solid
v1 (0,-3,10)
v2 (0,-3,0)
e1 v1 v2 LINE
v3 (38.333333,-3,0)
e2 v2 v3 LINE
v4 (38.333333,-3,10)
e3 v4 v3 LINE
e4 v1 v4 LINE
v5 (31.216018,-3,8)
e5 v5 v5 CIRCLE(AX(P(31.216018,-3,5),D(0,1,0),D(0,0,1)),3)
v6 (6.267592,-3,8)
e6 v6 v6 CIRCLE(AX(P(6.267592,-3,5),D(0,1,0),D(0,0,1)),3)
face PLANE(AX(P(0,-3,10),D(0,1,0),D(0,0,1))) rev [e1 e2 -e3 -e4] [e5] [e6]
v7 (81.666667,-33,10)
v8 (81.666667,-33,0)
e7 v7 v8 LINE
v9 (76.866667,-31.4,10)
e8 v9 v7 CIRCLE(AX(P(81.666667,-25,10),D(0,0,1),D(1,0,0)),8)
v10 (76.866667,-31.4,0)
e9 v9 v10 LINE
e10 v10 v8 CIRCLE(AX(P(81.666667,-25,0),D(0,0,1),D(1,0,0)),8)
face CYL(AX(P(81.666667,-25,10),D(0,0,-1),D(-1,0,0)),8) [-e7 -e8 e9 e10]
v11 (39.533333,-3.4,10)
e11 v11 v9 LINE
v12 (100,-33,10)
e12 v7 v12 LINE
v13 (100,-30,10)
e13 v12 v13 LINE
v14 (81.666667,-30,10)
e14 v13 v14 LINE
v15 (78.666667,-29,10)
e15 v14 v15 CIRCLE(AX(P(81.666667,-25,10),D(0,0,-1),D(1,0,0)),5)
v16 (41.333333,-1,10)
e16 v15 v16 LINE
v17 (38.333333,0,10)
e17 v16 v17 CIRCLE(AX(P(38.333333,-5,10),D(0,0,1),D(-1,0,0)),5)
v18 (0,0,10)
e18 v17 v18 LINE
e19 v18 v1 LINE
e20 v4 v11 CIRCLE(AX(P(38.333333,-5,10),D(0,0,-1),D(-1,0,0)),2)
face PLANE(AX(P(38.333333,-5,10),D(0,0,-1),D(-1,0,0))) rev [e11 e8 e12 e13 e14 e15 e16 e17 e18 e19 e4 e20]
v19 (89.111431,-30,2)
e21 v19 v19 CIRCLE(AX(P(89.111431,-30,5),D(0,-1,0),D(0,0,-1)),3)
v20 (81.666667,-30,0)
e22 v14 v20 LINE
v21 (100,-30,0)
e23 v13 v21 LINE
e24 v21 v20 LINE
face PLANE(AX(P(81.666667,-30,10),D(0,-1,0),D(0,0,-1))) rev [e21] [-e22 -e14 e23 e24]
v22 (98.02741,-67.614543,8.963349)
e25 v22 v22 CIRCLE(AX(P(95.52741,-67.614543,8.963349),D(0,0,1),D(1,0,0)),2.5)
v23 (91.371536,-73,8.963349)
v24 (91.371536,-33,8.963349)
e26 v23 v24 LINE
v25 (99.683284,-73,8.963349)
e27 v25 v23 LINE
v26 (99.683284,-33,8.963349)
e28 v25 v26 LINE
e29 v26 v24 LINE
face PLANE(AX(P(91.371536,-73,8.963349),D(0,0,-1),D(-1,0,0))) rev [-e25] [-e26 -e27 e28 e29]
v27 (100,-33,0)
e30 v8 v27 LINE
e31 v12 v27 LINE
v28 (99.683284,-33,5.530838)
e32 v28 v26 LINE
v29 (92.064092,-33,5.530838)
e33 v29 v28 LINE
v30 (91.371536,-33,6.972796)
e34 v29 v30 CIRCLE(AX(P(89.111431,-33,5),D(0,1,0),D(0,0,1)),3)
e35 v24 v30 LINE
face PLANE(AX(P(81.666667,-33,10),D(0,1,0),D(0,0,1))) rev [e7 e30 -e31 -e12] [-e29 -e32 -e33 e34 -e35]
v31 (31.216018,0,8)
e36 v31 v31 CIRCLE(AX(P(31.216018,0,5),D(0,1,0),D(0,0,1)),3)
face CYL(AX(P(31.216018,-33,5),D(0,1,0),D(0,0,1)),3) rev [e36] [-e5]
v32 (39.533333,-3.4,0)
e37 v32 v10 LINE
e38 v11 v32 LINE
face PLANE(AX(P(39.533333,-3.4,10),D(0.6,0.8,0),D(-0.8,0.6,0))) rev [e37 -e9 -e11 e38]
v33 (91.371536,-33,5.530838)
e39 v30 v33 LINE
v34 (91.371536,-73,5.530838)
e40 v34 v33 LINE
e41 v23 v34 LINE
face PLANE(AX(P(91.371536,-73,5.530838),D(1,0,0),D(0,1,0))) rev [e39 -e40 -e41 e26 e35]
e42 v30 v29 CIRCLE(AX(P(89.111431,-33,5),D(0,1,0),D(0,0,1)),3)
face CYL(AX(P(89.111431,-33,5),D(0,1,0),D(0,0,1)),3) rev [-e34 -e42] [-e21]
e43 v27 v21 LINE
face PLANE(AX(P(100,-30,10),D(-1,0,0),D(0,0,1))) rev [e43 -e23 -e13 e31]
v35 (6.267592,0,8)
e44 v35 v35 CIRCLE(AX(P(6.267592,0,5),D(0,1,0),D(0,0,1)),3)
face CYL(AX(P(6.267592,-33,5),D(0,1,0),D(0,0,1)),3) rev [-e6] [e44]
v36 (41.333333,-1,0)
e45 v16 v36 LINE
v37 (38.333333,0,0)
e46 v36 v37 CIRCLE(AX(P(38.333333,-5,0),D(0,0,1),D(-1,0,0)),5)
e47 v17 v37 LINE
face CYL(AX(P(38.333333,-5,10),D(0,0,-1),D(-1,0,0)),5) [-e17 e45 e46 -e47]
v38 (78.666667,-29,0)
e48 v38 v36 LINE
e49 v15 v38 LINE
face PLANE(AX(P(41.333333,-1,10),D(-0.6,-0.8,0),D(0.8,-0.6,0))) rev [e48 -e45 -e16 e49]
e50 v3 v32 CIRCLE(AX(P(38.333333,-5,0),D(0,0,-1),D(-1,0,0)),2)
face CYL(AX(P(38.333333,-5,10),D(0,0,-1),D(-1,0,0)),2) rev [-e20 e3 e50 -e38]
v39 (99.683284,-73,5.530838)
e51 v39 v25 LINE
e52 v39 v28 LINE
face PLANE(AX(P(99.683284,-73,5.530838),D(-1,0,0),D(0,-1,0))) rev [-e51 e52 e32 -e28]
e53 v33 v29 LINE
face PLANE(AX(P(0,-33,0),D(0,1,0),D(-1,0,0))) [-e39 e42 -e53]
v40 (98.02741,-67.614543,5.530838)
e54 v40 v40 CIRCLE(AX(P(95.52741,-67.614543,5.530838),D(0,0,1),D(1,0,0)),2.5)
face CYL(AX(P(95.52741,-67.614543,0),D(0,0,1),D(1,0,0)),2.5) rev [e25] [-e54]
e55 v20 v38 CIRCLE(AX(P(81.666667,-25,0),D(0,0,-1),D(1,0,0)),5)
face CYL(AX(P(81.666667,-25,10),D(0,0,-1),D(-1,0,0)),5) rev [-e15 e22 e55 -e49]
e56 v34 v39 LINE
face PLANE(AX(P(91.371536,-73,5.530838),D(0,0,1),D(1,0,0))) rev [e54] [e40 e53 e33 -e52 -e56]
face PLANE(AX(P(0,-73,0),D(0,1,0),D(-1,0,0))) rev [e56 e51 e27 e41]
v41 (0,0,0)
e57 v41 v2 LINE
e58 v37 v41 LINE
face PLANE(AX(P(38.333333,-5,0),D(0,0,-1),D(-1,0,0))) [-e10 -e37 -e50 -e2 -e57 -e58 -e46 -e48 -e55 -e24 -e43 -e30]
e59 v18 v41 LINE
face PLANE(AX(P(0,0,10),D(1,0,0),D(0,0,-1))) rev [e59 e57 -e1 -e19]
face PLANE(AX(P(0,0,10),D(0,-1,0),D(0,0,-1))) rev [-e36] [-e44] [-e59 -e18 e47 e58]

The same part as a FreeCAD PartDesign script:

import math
import FreeCAD as App
import Part
import Sketcher

V = App.Vector
Q = App.Units.Quantity

doc = App.newDocument("Part")
body = doc.addObject("PartDesign::Body", "Body")

# Sketch on XY plane
sketch1 = body.newObject("Sketcher::SketchObject", "Sketch")
sketch1.AttachmentSupport = (doc.getObject("XY_Plane"), [""])
sketch1.MapMode = "FlatFace"
sketch1.addGeometry([
    Part.LineSegment(V(38.3, 0, 0), V(0, 0, 0)),  # 0
    Part.LineSegment(V(0, 0, 0), V(0, -3, 0)),  # 1
    Part.LineSegment(V(0, -3, 0), V(38.3, -3, 0)),  # 2
    Part.ArcOfCircle(Part.Circle(V(38.3, -5, 0), V(0, 0, 1), 2), math.radians(53), math.radians(90)),  # 3
    Part.LineSegment(V(39.5, -3.4, 0), V(76.9, -31.4, 0)),  # 4
    Part.ArcOfCircle(Part.Circle(V(81.7, -25, 0), V(0, 0, 1), 8), math.radians(-127), math.radians(-90)),  # 5
    Part.LineSegment(V(81.7, -33, 0), V(100, -33, 0)),  # 6
    Part.LineSegment(V(100, -33, 0), V(100, -30, 0)),  # 7
    Part.LineSegment(V(100, -30, 0), V(81.7, -30, 0)),  # 8
    Part.ArcOfCircle(Part.Circle(V(81.7, -25, 0), V(0, 0, 1), 5), math.radians(-127), math.radians(-90)),  # 9
    Part.LineSegment(V(78.7, -29, 0), V(41.3, -1, 0)),  # 10
    Part.ArcOfCircle(Part.Circle(V(38.3, -5, 0), V(0, 0, 1), 5), math.radians(53), math.radians(90)),  # 11
], False)
sketch1.addConstraint([
    Sketcher.Constraint("Coincident", 0, 2, 1, 1),
    Sketcher.Constraint("Coincident", 1, 2, 2, 1),
    Sketcher.Constraint("Tangent", 2, 2, 3, 2),
    Sketcher.Constraint("Tangent", 3, 1, 4, 1),
    Sketcher.Constraint("Tangent", 4, 2, 5, 1),
    Sketcher.Constraint("Tangent", 5, 2, 6, 1),
    Sketcher.Constraint("Coincident", 6, 2, 7, 1),
    Sketcher.Constraint("Coincident", 7, 2, 8, 1),
    Sketcher.Constraint("Tangent", 8, 2, 9, 2),
    Sketcher.Constraint("Tangent", 9, 1, 10, 1),
    Sketcher.Constraint("Tangent", 10, 2, 11, 1),
    Sketcher.Constraint("Tangent", 11, 2, 0, 1),
    Sketcher.Constraint("Horizontal", 0),
    Sketcher.Constraint("Vertical", 1),
    Sketcher.Constraint("Horizontal", 2),
    Sketcher.Constraint("Horizontal", 6),
    Sketcher.Constraint("Vertical", 7),
    Sketcher.Constraint("Horizontal", 8),
    Sketcher.Constraint("Coincident", 0, 2, -1, 1),
    Sketcher.Constraint("Coincident", 9, 3, 5, 3),
    Sketcher.Constraint("Coincident", 11, 3, 3, 3),
    Sketcher.Constraint("Equal", 9, 11),
    Sketcher.Constraint("Parallel", 4, 10),
    Sketcher.Constraint("Radius", 3, Q("2 mm")),
    Sketcher.Constraint("Radius", 5, Q("8 mm")),
    Sketcher.Constraint("DistanceY", 5, 3, -1, 1, Q("25 mm")),
    Sketcher.Constraint("DistanceX", -1, 1, 6, 2, Q("100 mm")),
    Sketcher.Constraint("DistanceY", 9, 1, -1, 1, Q("29 mm")),
    Sketcher.Constraint("DistanceX", 0, 2, 0, 1, Q("38.333333 mm")),
])
pad1 = body.newObject("PartDesign::Pad", "Pad")
pad1.Profile = sketch1
pad1.Length = 10

# Sketch on XZ plane
sketch2 = body.newObject("Sketcher::SketchObject", "Sketch001")
sketch2.AttachmentSupport = (doc.getObject("XZ_Plane"), [""])
sketch2.MapMode = "FlatFace"
sketch2.addGeometry([
    Part.Circle(V(6.3, 5, 0), V(0, 0, 1), 3),
    Part.Circle(V(31.2, 5, 0), V(0, 0, 1), 3),
    Part.Circle(V(89.1, 5, 0), V(0, 0, 1), 3),
], False)
sketch2.addConstraint([
    Sketcher.Constraint("Equal", 0, 1),
    Sketcher.Constraint("Equal", 1, 2),
    Sketcher.Constraint("Horizontal", 0, 3, 1, 3),
    Sketcher.Constraint("Horizontal", 1, 3, 2, 3),
    Sketcher.Constraint("Diameter", 0, Q("6 mm")),
    Sketcher.Constraint("DistanceY", -1, 1, 0, 3, Q("5 mm")),
    Sketcher.Constraint("DistanceX", -1, 1, 2, 3, Q("89.111431 mm")),
    Sketcher.Constraint("DistanceX", 0, 3, 2, 3, Q("82.843839 mm")),
    Sketcher.Constraint("DistanceX", -1, 1, 1, 3, Q("31.216018 mm")),
])
pocket1 = body.newObject("PartDesign::Pocket", "Pocket")
pocket1.Profile = sketch2
pocket1.Type = "ThroughAll"
pocket1.Reversed = True

# Sketch on XZ plane
sketch3 = body.newObject("Sketcher::SketchObject", "Sketch002")
sketch3.AttachmentSupport = (doc.getObject("XZ_Plane"), [""])
sketch3.MapMode = "FlatFace"
sketch3.AttachmentOffset = App.Placement(V(0, 0, 33), App.Rotation())
sketch3.addGeometry([
    Part.LineSegment(V(91.4, 9, 0), V(91.4, 5.5, 0)),
    Part.LineSegment(V(91.4, 5.5, 0), V(99.7, 5.5, 0)),
    Part.LineSegment(V(99.7, 5.5, 0), V(99.7, 9, 0)),
    Part.LineSegment(V(99.7, 9, 0), V(91.4, 9, 0)),
], False)
sketch3.addConstraint([
    Sketcher.Constraint("Coincident", 0, 2, 1, 1),
    Sketcher.Constraint("Coincident", 1, 2, 2, 1),
    Sketcher.Constraint("Coincident", 2, 2, 3, 1),
    Sketcher.Constraint("Coincident", 3, 2, 0, 1),
    Sketcher.Constraint("Vertical", 0),
    Sketcher.Constraint("Horizontal", 1),
    Sketcher.Constraint("Vertical", 2),
    Sketcher.Constraint("Horizontal", 3),
    Sketcher.Constraint("DistanceY", 0, 2, 0, 1, Q("3.432511 mm")),
    Sketcher.Constraint("DistanceX", 1, 1, 1, 2, Q("8.311748 mm")),
    Sketcher.Constraint("DistanceY", -1, 1, 0, 2, Q("5.530838 mm")),
    Sketcher.Constraint("DistanceX", -1, 1, 0, 2, Q("91.371536 mm")),
])
pad2 = body.newObject("PartDesign::Pad", "Pad001")
pad2.Profile = sketch3
pad2.Length = 40

# Sketch on XY plane
sketch4 = body.newObject("Sketcher::SketchObject", "Sketch003")
sketch4.AttachmentSupport = (doc.getObject("XY_Plane"), [""])
sketch4.MapMode = "FlatFace"
sketch4.AttachmentOffset = App.Placement(V(0, 0, 8.963349), App.Rotation())
sketch4.addGeometry(Part.Circle(V(95.5, -67.6, 0), V(0, 0, 1), 2.5), False)
sketch4.addConstraint([
    Sketcher.Constraint("Diameter", 0, Q("5 mm")),
    Sketcher.Constraint("DistanceX", -1, 1, 0, 3, Q("95.52741 mm")),
    Sketcher.Constraint("DistanceY", 0, 3, -1, 1, Q("67.614543 mm")),
])
pocket2 = body.newObject("PartDesign::Pocket", "Pocket001")
pocket2.Profile = sketch4
pocket2.Type = "ThroughAll"

doc.recompute()
